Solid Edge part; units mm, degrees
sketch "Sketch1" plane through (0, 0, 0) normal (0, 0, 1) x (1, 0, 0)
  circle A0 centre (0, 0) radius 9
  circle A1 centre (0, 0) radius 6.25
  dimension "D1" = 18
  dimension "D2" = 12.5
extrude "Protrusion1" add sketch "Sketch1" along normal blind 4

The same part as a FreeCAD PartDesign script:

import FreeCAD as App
import Part
import Sketcher

V = App.Vector
Q = App.Units.Quantity

doc = App.newDocument("Part")
body = doc.addObject("PartDesign::Body", "Body")

# Sketch on XY plane
sketch1 = body.newObject("Sketcher::SketchObject", "Sketch")
sketch1.AttachmentSupport = (doc.getObject("XY_Plane"), [""])
sketch1.MapMode = "FlatFace"
sketch1.addGeometry(Part.Circle(V(0, 0, 0), V(0, 0, 1), 9), False)
sketch1.addGeometry(Part.Circle(V(0, 0, 0), V(0, 0, 1), 6), False)
sketch1.addConstraint(Sketcher.Constraint("Coincident", 0, 3, -1, 1))
sketch1.addConstraint(Sketcher.Constraint("Coincident", 1, 3, -1, 1))
sketch1.addConstraint(Sketcher.Constraint("Diameter", 0, Q("18 mm")))
sketch1.addConstraint(Sketcher.Constraint("Diameter", 1, Q("12.5 mm")))
pad1 = body.newObject("PartDesign::Pad", "Pad")
pad1.Profile = sketch1
pad1.Length = 4

doc.recompute()
